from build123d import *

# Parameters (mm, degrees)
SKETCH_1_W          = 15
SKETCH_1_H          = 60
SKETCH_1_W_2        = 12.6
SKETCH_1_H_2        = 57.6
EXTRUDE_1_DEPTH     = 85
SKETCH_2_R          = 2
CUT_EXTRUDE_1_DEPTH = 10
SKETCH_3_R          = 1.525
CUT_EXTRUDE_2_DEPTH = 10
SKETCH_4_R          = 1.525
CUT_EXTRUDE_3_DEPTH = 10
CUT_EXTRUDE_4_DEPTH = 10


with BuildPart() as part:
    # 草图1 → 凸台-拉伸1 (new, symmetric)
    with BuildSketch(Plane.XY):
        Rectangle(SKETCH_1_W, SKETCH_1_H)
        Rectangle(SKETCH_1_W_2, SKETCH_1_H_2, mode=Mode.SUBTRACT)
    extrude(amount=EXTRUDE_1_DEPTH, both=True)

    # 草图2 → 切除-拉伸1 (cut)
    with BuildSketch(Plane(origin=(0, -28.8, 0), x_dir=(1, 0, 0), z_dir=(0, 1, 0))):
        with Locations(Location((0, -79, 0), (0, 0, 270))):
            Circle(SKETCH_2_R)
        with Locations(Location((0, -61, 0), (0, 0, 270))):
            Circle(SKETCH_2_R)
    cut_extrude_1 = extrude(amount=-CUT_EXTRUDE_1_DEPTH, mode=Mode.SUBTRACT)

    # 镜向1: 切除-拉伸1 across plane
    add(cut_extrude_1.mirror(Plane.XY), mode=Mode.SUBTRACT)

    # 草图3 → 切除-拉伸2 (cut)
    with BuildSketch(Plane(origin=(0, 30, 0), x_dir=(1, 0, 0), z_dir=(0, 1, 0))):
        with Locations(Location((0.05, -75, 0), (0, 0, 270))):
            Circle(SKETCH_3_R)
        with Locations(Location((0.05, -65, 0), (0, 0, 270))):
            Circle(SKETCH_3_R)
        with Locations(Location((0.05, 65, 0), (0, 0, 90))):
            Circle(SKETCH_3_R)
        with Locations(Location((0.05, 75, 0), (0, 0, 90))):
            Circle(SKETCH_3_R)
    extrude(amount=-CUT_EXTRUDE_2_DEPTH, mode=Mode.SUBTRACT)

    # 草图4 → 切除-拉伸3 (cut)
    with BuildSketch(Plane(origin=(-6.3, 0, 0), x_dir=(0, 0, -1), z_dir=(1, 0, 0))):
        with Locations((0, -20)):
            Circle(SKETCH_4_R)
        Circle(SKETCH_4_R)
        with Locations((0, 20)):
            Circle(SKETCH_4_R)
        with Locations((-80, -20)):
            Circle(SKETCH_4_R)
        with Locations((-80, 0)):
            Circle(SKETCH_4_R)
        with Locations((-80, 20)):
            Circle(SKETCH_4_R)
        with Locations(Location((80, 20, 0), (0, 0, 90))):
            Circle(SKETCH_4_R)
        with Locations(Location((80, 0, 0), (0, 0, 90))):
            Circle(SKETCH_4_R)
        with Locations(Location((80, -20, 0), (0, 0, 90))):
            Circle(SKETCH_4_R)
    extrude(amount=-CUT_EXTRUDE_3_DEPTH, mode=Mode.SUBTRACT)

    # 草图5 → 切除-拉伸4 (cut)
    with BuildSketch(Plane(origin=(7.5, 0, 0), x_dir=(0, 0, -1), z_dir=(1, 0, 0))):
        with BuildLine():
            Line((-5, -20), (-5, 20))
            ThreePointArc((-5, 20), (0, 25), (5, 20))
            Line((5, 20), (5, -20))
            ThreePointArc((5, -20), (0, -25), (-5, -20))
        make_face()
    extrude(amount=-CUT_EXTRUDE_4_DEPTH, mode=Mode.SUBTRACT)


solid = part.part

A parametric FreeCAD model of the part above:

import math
import FreeCAD as App
import Part
import Sketcher

V = App.Vector
Q = App.Units.Quantity


def add_polygon(sketch, points):
    """Adds a closed chain of lines whose ends are joined by coincident constraints."""
    first, n = sketch.GeometryCount, len(points)
    for a, b in zip(points, points[1:] + points[:1]):
        sketch.addGeometry(Part.LineSegment(App.Vector(*a, 0), App.Vector(*b, 0)), False)
    for i in range(n):
        sketch.addConstraint(Sketcher.Constraint("Coincident", first + i, 2, first + (i + 1) % n, 1))

doc = App.newDocument("Part")
params = doc.addObject("Spreadsheet::Sheet", "Params")
for row, (alias, value) in enumerate([
    ("sketch1_width", "15 mm"),
    ("sketch1_height", "60 mm"),
    ("sketch1_width2", "12.6 mm"),
    ("sketch1_height2", "57.6 mm"),
    ("pad1_length", "170 mm"),
    ("sketch2_diameter", "4 mm"),
    ("pocket1_length", "10 mm"),
    ("sketch3_diameter", "3.05 mm"),
    ("pocket2_length", "10 mm"),
    ("sketch4_diameter", "3.05 mm"),
    ("pocket3_length", "10 mm"),
    ("sketch5_radius", "5 mm"),
    ("sketch5_width", "40 mm"),
    ("pocket4_length", "10 mm"),
], start=1):
    params.set(f"A{row}", alias)
    params.set(f"B{row}", "=" + value)
    params.setAlias(f"B{row}", alias)

body = doc.addObject("PartDesign::Body", "Body")

# Sketch on XY plane
sketch1 = body.newObject("Sketcher::SketchObject", "Sketch")
sketch1.AttachmentSupport = (doc.getObject("XY_Plane"), [""])
sketch1.MapMode = "FlatFace"
add_polygon(sketch1, [(-8, 30), (-8, -30), (8, -30), (8, 30)])  # lines 0-3
add_polygon(sketch1, [(6, -29), (-6, -29), (-6, 29), (6, 29)])  # lines 4-7
sketch1.addConstraint([
    Sketcher.Constraint("Vertical", 0),
    Sketcher.Constraint("Horizontal", 1),
    Sketcher.Constraint("Vertical", 2),
    Sketcher.Constraint("Horizontal", 3),
    Sketcher.Constraint("Horizontal", 4),
    Sketcher.Constraint("Vertical", 5),
    Sketcher.Constraint("Horizontal", 6),
    Sketcher.Constraint("Vertical", 7),
    Sketcher.Constraint("Symmetric", 0, 2, 2, 2, -1, 1),
    Sketcher.Constraint("Symmetric", 4, 2, 6, 2, -1, 1),
    Sketcher.Constraint("DistanceX", 1, 1, 1, 2, Q("15 mm")),
    Sketcher.Constraint("DistanceY", 0, 2, 0, 1, Q("60 mm")),
    Sketcher.Constraint("DistanceX", 4, 2, 4, 1, Q("12.6 mm")),
    Sketcher.Constraint("DistanceY", 5, 1, 5, 2, Q("57.6 mm")),
])
sketch1.setExpression("Constraints[18]", "Params.sketch1_width")
sketch1.setExpression("Constraints[19]", "Params.sketch1_height")
sketch1.setExpression("Constraints[20]", "Params.sketch1_width2")
sketch1.setExpression("Constraints[21]", "Params.sketch1_height2")
pad1 = body.newObject("PartDesign::Pad", "Pad")
pad1.Profile = sketch1
pad1.setExpression("Length", "Params.pad1_length")
pad1.Midplane = True

# Sketch on XZ plane
sketch2 = body.newObject("Sketcher::SketchObject", "Sketch001")
sketch2.AttachmentSupport = (doc.getObject("XZ_Plane"), [""])
sketch2.MapMode = "FlatFace"
sketch2.AttachmentOffset = App.Placement(V(0, 0, 28.8), App.Rotation())
sketch2.addGeometry([
    Part.Circle(V(0, 79, 0), V(0, 0, 1), 2),
    Part.Circle(V(0, 61, 0), V(0, 0, 1), 2),
], False)
sketch2.addConstraint([
    Sketcher.Constraint("Equal", 0, 1),
    Sketcher.Constraint("PointOnObject", 0, 3, -2),
    Sketcher.Constraint("PointOnObject", 1, 3, -2),
    Sketcher.Constraint("Diameter", 0, Q("4 mm")),
    Sketcher.Constraint("DistanceY", -1, 1, 0, 3, Q("79 mm")),
    Sketcher.Constraint("DistanceY", -1, 1, 1, 3, Q("61 mm")),
])
sketch2.setExpression("Constraints[3]", "Params.sketch2_diameter")
pocket1 = body.newObject("PartDesign::Pocket", "Pocket")
pocket1.Profile = sketch2
pocket1.setExpression("Length", "Params.pocket1_length")
pocket1.Reversed = True
doc.recompute()

mirrored = body.newObject("PartDesign::Mirrored", "Mirrored")
mirrored.Originals = [pocket1]
mirrored.MirrorPlane = (doc.getObject("XY_Plane"), [""])
body.Tip = mirrored

# Sketch on XZ plane
sketch3 = body.newObject("Sketcher::SketchObject", "Sketch002")
sketch3.AttachmentSupport = (doc.getObject("XZ_Plane"), [""])
sketch3.MapMode = "FlatFace"
sketch3.AttachmentOffset = App.Placement(V(0, 0, -30), App.Rotation())
sketch3.addGeometry([
    Part.Circle(V(0.1, 75, 0), V(0, 0, 1), 1.5),
    Part.Circle(V(0.1, 65, 0), V(0, 0, 1), 1.5),
    Part.Circle(V(0.1, -65, 0), V(0, 0, 1), 1.5),
    Part.Circle(V(0.1, -75, 0), V(0, 0, 1), 1.5),
], False)
sketch3.addConstraint([
    Sketcher.Constraint("Equal", 0, 1),
    Sketcher.Constraint("Equal", 1, 2),
    Sketcher.Constraint("Equal", 2, 3),
    Sketcher.Constraint("Symmetric", 1, 3, 2, 3, -1),
    Sketcher.Constraint("Symmetric", 0, 3, 3, 3, -1),
    Sketcher.Constraint("Vertical", 0, 3, 1, 3),
    Sketcher.Constraint("Diameter", 0, Q("3.05 mm")),
    Sketcher.Constraint("DistanceY", -1, 1, 0, 3, Q("75 mm")),
    Sketcher.Constraint("DistanceY", -1, 1, 1, 3, Q("65 mm")),
    Sketcher.Constraint("DistanceX", -1, 1, 0, 3, Q("0.05 mm")),
])
sketch3.setExpression("Constraints[6]", "Params.sketch3_diameter")
pocket2 = body.newObject("PartDesign::Pocket", "Pocket001")
pocket2.Profile = sketch3
pocket2.setExpression("Length", "Params.pocket2_length")
pocket2.Reversed = True

# Sketch on YZ plane
sketch4 = body.newObject("Sketcher::SketchObject", "Sketch003")
sketch4.AttachmentSupport = (doc.getObject("YZ_Plane"), [""])
sketch4.MapMode = "FlatFace"
sketch4.AttachmentOffset = App.Placement(V(0, 0, -6.3), App.Rotation())
sketch4.addGeometry([
    Part.Circle(V(-20, 0, 0), V(0, 0, 1), 1.5),  # 0
    Part.Circle(V(0, 0, 0), V(0, 0, 1), 1.5),  # 1
    Part.Circle(V(20, 0, 0), V(0, 0, 1), 1.5),  # 2
    Part.Circle(V(-20, 80, 0), V(0, 0, 1), 1.5),  # 3
    Part.Circle(V(0, 80, 0), V(0, 0, 1), 1.5),  # 4
    Part.Circle(V(20, 80, 0), V(0, 0, 1), 1.5),  # 5
    Part.Circle(V(20, -80, 0), V(0, 0, 1), 1.5),  # 6
    Part.Circle(V(0, -80, 0), V(0, 0, 1), 1.5),  # 7
    Part.Circle(V(-20, -80, 0), V(0, 0, 1), 1.5),  # 8
], False)
sketch4.addConstraint([
    Sketcher.Constraint("Coincident", 1, 3, -1, 1),
    Sketcher.Constraint("Equal", 0, 1),
    Sketcher.Constraint("Equal", 1, 2),
    Sketcher.Constraint("Equal", 2, 3),
    Sketcher.Constraint("Equal", 3, 4),
    Sketcher.Constraint("Equal", 4, 5),
    Sketcher.Constraint("Equal", 5, 6),
    Sketcher.Constraint("Equal", 6, 7),
    Sketcher.Constraint("Equal", 7, 8),
    Sketcher.Constraint("Symmetric", 0, 3, 2, 3, -1, 1),
    Sketcher.Constraint("Symmetric", 3, 3, 6, 3, -1, 1),
    Sketcher.Constraint("Symmetric", 4, 3, 7, 3, -1, 1),
    Sketcher.Constraint("Symmetric", 5, 3, 8, 3, -1, 1),
    Sketcher.Constraint("Symmetric", 3, 3, 5, 3, -2),
    Sketcher.Constraint("PointOnObject", 0, 3, -1),
    Sketcher.Constraint("PointOnObject", 4, 3, -2),
    Sketcher.Constraint("Horizontal", 3, 3, 4, 3),
    Sketcher.Constraint("Vertical", 0, 3, 3, 3),
    Sketcher.Constraint("Diameter", 0, Q("3.05 mm")),
    Sketcher.Constraint("DistanceX", 0, 3, -1, 1, Q("20 mm")),
    Sketcher.Constraint("DistanceY", -1, 1, 3, 3, Q("80 mm")),
])
sketch4.setExpression("Constraints[18]", "Params.sketch4_diameter")
pocket3 = body.newObject("PartDesign::Pocket", "Pocket002")
pocket3.Profile = sketch4
pocket3.setExpression("Length", "Params.pocket3_length")

# Sketch on YZ plane
sketch5 = body.newObject("Sketcher::SketchObject", "Sketch004")
sketch5.AttachmentSupport = (doc.getObject("YZ_Plane"), [""])
sketch5.MapMode = "FlatFace"
sketch5.AttachmentOffset = App.Placement(V(0, 0, 7.5), App.Rotation())
sketch5.addGeometry([
    Part.LineSegment(V(20, 5, 0), V(-20, 5, 0)),
    Part.ArcOfCircle(Part.Circle(V(-20, 0, 0), V(0, 0, 1), 5), math.radians(90), math.radians(270)),
    Part.LineSegment(V(-20, -5, 0), V(20, -5, 0)),
    Part.ArcOfCircle(Part.Circle(V(20, 0, 0), V(0, 0, 1), 5), math.radians(-90), math.radians(90)),
], False)
sketch5.addConstraint([
    Sketcher.Constraint("Tangent", 0, 2, 1, 1),
    Sketcher.Constraint("Tangent", 1, 2, 2, 1),
    Sketcher.Constraint("Tangent", 2, 2, 3, 1),
    Sketcher.Constraint("Tangent", 3, 2, 0, 1),
    Sketcher.Constraint("Horizontal", 0),
    Sketcher.Constraint("Horizontal", 2),
    Sketcher.Constraint("Symmetric", 1, 3, 3, 3, -1, 1),
    Sketcher.Constraint("Radius", 1, Q("5 mm")),
    Sketcher.Constraint("DistanceX", 0, 2, 0, 1, Q("40 mm")),
])
sketch5.setExpression("Constraints[7]", "Params.sketch5_radius")
sketch5.setExpression("Constraints[8]", "Params.sketch5_width")
pocket4 = body.newObject("PartDesign::Pocket", "Pocket003")
pocket4.Profile = sketch5
pocket4.setExpression("Length", "Params.pocket4_length")

doc.recompute()
